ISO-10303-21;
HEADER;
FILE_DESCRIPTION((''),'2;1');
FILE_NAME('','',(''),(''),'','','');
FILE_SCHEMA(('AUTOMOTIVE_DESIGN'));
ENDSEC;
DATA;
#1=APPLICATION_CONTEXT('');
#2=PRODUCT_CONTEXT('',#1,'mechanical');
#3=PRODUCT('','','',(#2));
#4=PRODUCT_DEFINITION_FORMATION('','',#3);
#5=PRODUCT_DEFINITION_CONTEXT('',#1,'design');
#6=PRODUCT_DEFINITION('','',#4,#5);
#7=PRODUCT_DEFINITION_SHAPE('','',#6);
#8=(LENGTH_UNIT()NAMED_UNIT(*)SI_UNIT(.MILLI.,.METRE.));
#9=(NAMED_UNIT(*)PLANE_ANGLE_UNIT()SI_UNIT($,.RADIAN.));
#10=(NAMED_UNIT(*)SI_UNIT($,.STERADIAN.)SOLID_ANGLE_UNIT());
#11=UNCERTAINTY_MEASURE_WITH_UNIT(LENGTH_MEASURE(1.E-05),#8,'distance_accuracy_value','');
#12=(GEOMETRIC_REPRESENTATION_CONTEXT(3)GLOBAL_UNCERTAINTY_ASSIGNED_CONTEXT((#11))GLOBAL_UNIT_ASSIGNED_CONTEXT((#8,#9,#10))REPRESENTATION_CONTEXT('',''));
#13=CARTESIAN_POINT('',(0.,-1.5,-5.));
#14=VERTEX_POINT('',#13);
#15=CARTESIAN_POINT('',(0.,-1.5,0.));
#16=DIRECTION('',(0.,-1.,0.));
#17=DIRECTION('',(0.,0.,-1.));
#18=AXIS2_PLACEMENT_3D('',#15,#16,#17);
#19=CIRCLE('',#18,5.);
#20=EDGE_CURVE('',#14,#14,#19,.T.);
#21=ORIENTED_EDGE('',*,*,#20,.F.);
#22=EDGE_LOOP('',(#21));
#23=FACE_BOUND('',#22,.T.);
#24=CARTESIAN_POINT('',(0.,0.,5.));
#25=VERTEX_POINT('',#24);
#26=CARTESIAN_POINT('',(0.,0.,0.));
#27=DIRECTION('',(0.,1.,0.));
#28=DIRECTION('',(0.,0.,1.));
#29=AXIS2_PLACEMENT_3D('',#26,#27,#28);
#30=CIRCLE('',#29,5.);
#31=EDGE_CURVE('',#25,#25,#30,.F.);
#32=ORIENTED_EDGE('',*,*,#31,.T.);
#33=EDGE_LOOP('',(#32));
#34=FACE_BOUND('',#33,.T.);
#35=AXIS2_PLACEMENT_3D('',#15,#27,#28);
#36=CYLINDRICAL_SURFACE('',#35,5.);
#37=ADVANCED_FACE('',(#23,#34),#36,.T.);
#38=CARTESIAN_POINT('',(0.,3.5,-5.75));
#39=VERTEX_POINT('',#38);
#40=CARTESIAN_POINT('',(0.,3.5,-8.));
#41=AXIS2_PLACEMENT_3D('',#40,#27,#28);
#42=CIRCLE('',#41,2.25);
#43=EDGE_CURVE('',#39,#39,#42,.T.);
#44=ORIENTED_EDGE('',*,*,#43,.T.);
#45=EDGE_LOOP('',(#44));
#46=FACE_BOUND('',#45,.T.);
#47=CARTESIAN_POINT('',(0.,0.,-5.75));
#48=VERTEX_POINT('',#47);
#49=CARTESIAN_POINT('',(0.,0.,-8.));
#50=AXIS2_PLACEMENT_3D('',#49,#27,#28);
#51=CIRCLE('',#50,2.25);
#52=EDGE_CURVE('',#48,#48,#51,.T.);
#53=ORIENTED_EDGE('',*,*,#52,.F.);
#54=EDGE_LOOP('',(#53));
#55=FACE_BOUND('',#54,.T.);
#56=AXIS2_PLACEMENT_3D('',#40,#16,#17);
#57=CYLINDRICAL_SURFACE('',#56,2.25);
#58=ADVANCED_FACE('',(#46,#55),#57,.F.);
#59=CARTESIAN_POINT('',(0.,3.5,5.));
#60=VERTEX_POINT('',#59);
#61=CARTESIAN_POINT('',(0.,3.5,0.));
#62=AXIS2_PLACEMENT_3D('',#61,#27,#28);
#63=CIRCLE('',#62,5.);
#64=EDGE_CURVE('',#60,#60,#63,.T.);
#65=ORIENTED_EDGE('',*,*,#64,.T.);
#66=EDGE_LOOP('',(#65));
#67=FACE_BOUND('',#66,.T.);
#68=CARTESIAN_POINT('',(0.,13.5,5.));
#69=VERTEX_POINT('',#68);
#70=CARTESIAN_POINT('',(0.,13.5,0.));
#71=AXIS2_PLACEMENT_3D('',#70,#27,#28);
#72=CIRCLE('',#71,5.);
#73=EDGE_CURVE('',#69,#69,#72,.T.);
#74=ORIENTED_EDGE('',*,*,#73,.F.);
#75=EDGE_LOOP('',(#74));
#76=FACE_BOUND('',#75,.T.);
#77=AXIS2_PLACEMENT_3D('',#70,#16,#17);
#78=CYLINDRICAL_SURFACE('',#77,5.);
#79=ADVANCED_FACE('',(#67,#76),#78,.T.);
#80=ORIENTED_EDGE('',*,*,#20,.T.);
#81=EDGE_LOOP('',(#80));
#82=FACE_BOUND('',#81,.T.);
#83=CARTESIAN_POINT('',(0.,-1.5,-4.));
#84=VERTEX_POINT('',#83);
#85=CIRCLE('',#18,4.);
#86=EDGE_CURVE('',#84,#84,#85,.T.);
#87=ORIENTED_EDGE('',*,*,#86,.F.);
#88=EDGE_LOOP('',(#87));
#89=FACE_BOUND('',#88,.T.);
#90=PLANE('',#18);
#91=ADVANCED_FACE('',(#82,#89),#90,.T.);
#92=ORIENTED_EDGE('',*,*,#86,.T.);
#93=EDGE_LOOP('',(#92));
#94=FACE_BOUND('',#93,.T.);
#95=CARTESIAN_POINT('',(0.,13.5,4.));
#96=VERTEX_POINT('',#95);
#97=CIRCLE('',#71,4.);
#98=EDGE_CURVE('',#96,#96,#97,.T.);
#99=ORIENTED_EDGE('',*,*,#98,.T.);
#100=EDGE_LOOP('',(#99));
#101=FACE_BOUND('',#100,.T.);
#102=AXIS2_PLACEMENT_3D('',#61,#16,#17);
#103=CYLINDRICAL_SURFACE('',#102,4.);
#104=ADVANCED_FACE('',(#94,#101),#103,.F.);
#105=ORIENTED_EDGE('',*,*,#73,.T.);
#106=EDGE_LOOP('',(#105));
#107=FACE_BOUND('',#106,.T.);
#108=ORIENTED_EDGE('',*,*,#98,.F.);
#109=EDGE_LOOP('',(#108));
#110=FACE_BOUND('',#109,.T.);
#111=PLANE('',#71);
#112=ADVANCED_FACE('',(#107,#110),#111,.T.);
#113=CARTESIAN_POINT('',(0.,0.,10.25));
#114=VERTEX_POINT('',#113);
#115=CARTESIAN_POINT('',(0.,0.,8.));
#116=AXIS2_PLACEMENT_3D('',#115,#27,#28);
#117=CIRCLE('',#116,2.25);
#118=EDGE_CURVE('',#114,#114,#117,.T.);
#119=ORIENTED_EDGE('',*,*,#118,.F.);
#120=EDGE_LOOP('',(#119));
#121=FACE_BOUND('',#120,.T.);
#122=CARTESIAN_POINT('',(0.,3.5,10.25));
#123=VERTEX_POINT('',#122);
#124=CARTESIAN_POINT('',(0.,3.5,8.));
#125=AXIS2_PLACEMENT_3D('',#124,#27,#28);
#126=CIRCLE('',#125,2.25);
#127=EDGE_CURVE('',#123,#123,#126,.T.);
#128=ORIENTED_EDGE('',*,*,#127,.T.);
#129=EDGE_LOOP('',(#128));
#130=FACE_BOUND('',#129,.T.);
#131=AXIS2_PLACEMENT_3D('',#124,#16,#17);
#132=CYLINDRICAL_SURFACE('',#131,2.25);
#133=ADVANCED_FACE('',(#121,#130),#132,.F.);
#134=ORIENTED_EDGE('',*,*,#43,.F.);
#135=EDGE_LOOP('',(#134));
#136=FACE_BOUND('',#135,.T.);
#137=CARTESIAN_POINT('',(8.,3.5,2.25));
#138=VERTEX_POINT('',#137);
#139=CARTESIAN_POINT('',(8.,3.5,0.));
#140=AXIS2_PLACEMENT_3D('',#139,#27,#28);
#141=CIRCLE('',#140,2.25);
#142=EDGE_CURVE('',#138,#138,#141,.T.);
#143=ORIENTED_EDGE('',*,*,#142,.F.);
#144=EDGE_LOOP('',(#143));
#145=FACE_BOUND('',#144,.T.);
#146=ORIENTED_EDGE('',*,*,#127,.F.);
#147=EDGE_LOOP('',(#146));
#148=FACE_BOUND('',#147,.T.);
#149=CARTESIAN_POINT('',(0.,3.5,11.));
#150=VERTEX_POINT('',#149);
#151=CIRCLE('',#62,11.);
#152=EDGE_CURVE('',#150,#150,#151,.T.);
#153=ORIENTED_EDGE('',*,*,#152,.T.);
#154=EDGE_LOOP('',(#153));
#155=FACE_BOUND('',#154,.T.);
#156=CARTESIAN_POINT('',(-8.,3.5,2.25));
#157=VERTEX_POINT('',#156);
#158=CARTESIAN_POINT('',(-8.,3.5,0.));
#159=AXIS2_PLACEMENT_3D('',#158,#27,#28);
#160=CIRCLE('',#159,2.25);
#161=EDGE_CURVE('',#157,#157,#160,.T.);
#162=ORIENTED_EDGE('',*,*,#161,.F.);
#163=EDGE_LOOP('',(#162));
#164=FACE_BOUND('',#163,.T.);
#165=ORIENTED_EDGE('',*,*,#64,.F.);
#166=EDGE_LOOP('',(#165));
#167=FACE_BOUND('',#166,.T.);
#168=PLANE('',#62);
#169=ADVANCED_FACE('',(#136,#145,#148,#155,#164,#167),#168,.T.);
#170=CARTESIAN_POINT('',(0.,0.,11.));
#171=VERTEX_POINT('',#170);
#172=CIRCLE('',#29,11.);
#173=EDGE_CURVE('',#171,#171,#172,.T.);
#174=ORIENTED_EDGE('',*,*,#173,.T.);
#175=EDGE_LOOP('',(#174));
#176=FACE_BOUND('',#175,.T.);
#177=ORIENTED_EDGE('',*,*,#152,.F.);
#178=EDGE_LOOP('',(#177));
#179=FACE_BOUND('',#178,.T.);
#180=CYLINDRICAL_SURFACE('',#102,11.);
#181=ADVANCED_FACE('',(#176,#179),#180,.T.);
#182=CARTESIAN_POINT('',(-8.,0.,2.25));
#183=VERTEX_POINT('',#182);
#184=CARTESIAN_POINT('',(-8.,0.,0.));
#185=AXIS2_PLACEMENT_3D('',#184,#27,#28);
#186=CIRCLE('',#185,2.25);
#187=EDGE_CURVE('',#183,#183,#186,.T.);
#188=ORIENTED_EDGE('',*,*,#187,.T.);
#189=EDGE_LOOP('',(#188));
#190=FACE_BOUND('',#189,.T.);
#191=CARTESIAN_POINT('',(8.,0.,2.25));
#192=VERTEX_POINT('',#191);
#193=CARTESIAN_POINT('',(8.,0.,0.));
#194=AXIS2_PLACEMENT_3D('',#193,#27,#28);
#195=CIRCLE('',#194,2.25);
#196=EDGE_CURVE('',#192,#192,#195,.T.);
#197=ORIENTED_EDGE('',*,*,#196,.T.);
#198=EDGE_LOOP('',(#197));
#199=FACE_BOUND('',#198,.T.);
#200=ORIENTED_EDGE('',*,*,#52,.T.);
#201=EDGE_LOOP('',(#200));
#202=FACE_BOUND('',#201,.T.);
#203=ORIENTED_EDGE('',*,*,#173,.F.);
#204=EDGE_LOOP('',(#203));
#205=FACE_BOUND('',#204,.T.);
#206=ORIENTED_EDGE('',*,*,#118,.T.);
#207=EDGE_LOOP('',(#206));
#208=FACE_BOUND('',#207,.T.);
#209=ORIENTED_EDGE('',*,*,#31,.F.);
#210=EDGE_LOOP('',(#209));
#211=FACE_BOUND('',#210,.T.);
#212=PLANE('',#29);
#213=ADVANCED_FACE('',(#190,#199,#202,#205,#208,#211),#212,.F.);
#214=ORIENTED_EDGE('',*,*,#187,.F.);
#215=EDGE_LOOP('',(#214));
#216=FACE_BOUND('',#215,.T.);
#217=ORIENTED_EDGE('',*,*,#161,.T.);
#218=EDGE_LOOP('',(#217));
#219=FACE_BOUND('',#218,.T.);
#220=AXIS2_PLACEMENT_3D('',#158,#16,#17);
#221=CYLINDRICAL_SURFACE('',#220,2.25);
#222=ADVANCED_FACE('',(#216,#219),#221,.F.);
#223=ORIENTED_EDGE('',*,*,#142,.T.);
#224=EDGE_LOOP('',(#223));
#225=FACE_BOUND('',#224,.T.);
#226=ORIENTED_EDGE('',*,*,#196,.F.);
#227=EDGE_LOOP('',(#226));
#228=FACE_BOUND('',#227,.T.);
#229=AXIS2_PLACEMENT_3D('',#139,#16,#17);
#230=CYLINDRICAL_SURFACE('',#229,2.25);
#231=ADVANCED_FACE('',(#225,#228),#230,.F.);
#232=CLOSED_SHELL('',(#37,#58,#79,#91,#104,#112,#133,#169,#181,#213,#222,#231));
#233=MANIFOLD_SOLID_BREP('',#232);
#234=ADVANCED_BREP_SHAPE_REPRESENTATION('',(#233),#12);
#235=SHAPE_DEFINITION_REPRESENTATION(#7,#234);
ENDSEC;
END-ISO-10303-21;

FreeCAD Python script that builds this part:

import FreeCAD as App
import Part
import Sketcher

V = App.Vector
Q = App.Units.Quantity

doc = App.newDocument("Part")
body = doc.addObject("PartDesign::Body", "Body")

# Sketch on XZ plane
sketch1 = doc.addObject("Sketcher::SketchObject", "Sketch")
body.addObject(sketch1)
sketch1.AttachmentSupport = (doc.XZ_Plane, [""])
sketch1.MapMode = "FlatFace"
sketch1.addGeometry([
    Part.Circle(V(0, 0, 0), V(0, 0, 1), 11),  # 0
    Part.Circle(V(0, -8, 0), V(0, 0, 1), 2.2),  # 1
    Part.Circle(V(-8, 0, 0), V(0, 0, 1), 2.2),  # 2
    Part.Circle(V(0, 0, 0), V(0, 0, 1), 4),  # 3
    Part.Circle(V(0, 8, 0), V(0, 0, 1), 2.2),  # 4
    Part.Circle(V(8, 0, 0), V(0, 0, 1), 2.2),  # 5
], False)
sketch1.addConstraint([
    Sketcher.Constraint("Coincident", 0, 3, -1, 1),
    Sketcher.Constraint("Coincident", 3, 3, -1, 1),
    Sketcher.Constraint("Equal", 1, 2),
    Sketcher.Constraint("Equal", 2, 4),
    Sketcher.Constraint("Equal", 4, 5),
    Sketcher.Constraint("Symmetric", 1, 3, 4, 3, -1, 1),
    Sketcher.Constraint("Symmetric", 2, 3, 5, 3, -1, 1),
    Sketcher.Constraint("PointOnObject", 1, 3, -2),
    Sketcher.Constraint("PointOnObject", 2, 3, -1),
    Sketcher.Constraint("Diameter", 0, Q("22 mm")),
    Sketcher.Constraint("Diameter", 3, Q("8 mm")),
    Sketcher.Constraint("Diameter", 1, Q("4.5 mm")),
    Sketcher.Constraint("DistanceY", 1, 3, -1, 1, Q("8 mm")),
    Sketcher.Constraint("DistanceX", 2, 3, -1, 1, Q("8 mm")),
])
pad1 = doc.addObject("PartDesign::Pad", "Pad")
body.addObject(pad1)
pad1.Profile = sketch1
pad1.Length = 3.5
pad1.Reversed = True

# Sketch on XZ plane
sketch2 = doc.addObject("Sketcher::SketchObject", "Sketch001")
body.addObject(sketch2)
sketch2.AttachmentSupport = (doc.XZ_Plane, [""])
sketch2.MapMode = "FlatFace"
sketch2.AttachmentOffset = App.Placement(V(0, 0, -3.5), App.Rotation())
sketch2.addGeometry([
    Part.Circle(V(0, 0, 0), V(0, 0, 1), 5),
    Part.Circle(V(0, 0, 0), V(0, 0, 1), 4),
], False)
sketch2.addConstraint([
    Sketcher.Constraint("Coincident", 0, 3, -1, 1),
    Sketcher.Constraint("Coincident", 1, 3, -1, 1),
    Sketcher.Constraint("Diameter", 0, Q("10 mm")),
    Sketcher.Constraint("Diameter", 1, Q("8 mm")),
])
pad2 = doc.addObject("PartDesign::Pad", "Pad001")
body.addObject(pad2)
pad2.Profile = sketch2
pad2.Length = 10
pad2.Reversed = True

# Sketch on XZ plane
sketch3 = doc.addObject("Sketcher::SketchObject", "Sketch002")
body.addObject(sketch3)
sketch3.AttachmentSupport = (doc.XZ_Plane, [""])
sketch3.MapMode = "FlatFace"
sketch3.AttachmentOffset = App.Placement(V(0, 0, 1.5), App.Rotation())
sketch3.addGeometry([
    Part.Circle(V(0, 0, 0), V(0, 0, 1), 5),
    Part.Circle(V(0, 0, 0), V(0, 0, 1), 4),
], False)
sketch3.addConstraint([
    Sketcher.Constraint("Coincident", 0, 3, -1, 1),
    Sketcher.Constraint("Coincident", 1, 3, -1, 1),
    Sketcher.Constraint("Diameter", 0, Q("10 mm")),
    Sketcher.Constraint("Diameter", 1, Q("8 mm")),
])
pad3 = doc.addObject("PartDesign::Pad", "Pad002")
body.addObject(pad3)
pad3.Profile = sketch3
pad3.Length = 1.5
pad3.Reversed = True

doc.recompute()
